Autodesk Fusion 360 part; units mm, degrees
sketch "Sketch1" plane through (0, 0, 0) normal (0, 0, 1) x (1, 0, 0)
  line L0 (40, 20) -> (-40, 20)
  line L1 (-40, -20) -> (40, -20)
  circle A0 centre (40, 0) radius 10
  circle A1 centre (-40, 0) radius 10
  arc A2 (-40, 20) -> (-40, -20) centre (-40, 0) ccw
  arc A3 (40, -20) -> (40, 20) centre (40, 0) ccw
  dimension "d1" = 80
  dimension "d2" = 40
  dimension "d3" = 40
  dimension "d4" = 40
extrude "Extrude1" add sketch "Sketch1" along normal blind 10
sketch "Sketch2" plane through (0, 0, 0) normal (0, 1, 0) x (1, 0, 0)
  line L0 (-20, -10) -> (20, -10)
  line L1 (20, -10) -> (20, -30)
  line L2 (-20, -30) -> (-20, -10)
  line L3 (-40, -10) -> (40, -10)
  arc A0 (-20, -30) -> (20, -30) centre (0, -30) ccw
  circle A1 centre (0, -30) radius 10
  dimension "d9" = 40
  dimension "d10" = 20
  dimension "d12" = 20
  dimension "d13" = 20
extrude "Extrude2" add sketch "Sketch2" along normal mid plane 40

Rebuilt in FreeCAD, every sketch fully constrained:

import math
import FreeCAD as App
import Part
import Sketcher
from FreeCAD import Vector

doc = App.newDocument("Part")
body = doc.addObject("PartDesign::Body", "Body")

sketch1 = body.newObject("Sketcher::SketchObject", "Sketch")
sketch1.AttachmentSupport = (doc.getObject("XY_Plane"), [""])
sketch1.MapMode = "FlatFace"
sketch1.addGeometry([
    Part.ArcOfCircle(Part.Circle(Vector(40, 0, 0), Vector(0, 0, 1), 20), math.radians(-90), math.radians(90)),
    Part.LineSegment(Vector(40, 20, 0), Vector(-40, 20, 0)),
    Part.ArcOfCircle(Part.Circle(Vector(-40, 0, 0), Vector(0, 0, 1), 20), math.radians(90), math.radians(270)),
    Part.LineSegment(Vector(-40, -20, 0), Vector(40, -20, 0)),
    Part.Circle(Vector(-40, 0, 0), Vector(0, 0, 1), 10),
    Part.Circle(Vector(40, 0, 0), Vector(0, 0, 1), 10),
], False)
sketch1.addConstraint([
    Sketcher.Constraint("Tangent", 0, 2, 1, 1),
    Sketcher.Constraint("Tangent", 1, 2, 2, 1),
    Sketcher.Constraint("Tangent", 2, 2, 3, 1),
    Sketcher.Constraint("Tangent", 3, 2, 0, 1),
    Sketcher.Constraint("Horizontal", 1),
    Sketcher.Constraint("Horizontal", 3),
    Sketcher.Constraint("Coincident", 4, 3, 2, 3),
    Sketcher.Constraint("Coincident", 5, 3, 0, 3),
    Sketcher.Constraint("Equal", 4, 5),
    Sketcher.Constraint("Symmetric", 0, 3, 2, 3, -1, 1),
    Sketcher.Constraint("Radius", 0, 20.0),
    Sketcher.Constraint("DistanceX", 1, 2, 1, 1, 80.0),
    Sketcher.Constraint("Diameter", 4, 20.0),
])
pad1 = body.newObject("PartDesign::Pad", "Pad")
pad1.Profile = sketch1
pad1.Length = 10

sketch2 = body.newObject("Sketcher::SketchObject", "Sketch001")
sketch2.AttachmentSupport = (doc.getObject("XZ_Plane"), [""])
sketch2.MapMode = "FlatFace"
sketch2.addGeometry([
    Part.LineSegment(Vector(20, 10, 0), Vector(-20, 10, 0)),
    Part.LineSegment(Vector(-20, 10, 0), Vector(-20, 30, 0)),
    Part.ArcOfCircle(Part.Circle(Vector(0, 30, 0), Vector(0, 0, 1), 20), math.radians(0), math.radians(180)),
    Part.LineSegment(Vector(20, 30, 0), Vector(20, 10, 0)),
    Part.Circle(Vector(0, 30, 0), Vector(0, 0, 1), 10),
], False)
sketch2.addConstraint([
    Sketcher.Constraint("Coincident", 0, 2, 1, 1),
    Sketcher.Constraint("Tangent", 1, 2, 2, 2),
    Sketcher.Constraint("Tangent", 2, 1, 3, 1),
    Sketcher.Constraint("Coincident", 3, 2, 0, 1),
    Sketcher.Constraint("Horizontal", 0),
    Sketcher.Constraint("Vertical", 1),
    Sketcher.Constraint("Vertical", 3),
    Sketcher.Constraint("Coincident", 4, 3, 2, 3),
    Sketcher.Constraint("PointOnObject", 2, 3, -2),
    Sketcher.Constraint("Diameter", 4, 20.0),
    Sketcher.Constraint("Radius", 2, 20.0),
    Sketcher.Constraint("DistanceY", 1, 1, 1, 2, 20.0),
    Sketcher.Constraint("DistanceY", -1, 1, 2, 3, 30.0),
])
pad2 = body.newObject("PartDesign::Pad", "Pad001")
pad2.Profile = sketch2
pad2.Length = 40
pad2.Midplane = True

doc.recompute()
